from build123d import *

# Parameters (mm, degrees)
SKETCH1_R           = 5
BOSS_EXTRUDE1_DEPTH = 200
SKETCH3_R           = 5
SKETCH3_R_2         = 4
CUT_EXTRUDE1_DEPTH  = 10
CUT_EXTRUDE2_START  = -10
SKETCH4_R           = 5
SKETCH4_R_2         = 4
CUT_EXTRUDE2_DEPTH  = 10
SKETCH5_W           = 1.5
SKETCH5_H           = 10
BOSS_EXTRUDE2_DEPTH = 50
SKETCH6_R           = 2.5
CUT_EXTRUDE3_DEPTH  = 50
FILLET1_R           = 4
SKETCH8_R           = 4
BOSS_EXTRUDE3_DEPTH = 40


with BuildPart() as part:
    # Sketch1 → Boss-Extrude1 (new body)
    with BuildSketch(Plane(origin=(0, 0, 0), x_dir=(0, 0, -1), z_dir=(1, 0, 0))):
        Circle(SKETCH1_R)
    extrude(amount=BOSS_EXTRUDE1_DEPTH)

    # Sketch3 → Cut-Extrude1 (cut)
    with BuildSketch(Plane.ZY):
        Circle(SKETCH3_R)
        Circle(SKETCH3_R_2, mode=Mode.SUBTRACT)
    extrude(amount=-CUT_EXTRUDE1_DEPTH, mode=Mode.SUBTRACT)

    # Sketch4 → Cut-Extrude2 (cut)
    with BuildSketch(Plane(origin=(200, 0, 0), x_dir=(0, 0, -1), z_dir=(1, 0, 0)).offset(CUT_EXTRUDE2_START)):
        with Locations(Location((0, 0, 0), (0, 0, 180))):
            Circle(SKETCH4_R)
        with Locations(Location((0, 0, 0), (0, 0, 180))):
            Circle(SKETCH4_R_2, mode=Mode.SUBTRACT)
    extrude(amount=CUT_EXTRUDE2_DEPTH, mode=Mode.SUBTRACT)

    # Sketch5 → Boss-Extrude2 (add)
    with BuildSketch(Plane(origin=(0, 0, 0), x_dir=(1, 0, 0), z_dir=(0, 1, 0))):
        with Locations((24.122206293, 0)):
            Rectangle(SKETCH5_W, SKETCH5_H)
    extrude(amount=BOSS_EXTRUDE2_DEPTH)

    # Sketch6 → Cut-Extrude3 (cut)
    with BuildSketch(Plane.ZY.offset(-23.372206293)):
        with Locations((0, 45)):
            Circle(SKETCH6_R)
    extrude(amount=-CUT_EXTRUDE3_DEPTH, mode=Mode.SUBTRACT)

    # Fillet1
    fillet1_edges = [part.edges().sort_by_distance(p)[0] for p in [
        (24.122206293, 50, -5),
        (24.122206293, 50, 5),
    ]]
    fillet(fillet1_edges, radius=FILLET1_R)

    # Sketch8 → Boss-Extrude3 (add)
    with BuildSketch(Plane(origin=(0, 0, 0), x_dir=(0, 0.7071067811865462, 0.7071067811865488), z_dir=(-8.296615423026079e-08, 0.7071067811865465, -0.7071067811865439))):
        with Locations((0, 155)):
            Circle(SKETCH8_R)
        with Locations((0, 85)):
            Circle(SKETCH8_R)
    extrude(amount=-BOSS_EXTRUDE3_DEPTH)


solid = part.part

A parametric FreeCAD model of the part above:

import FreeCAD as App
import Part
import Sketcher


def edges_at(feature, points):
    """Names of the edges that pass closest to the given points."""
    edges = feature.Shape.Edges
    near = lambda p: min(range(len(edges)), key=lambda i: edges[i].distToShape(Part.Vertex(*p))[0])
    return sorted({f"Edge{near(p) + 1}" for p in points})

doc = App.newDocument("Part")
body = doc.addObject("PartDesign::Body", "Body")

# Sketch on YZ plane
sketch1 = doc.addObject("Sketcher::SketchObject", "Sketch")
body.addObject(sketch1)
sketch1.AttachmentSupport = (doc.YZ_Plane, [""])
sketch1.MapMode = "FlatFace"
sketch1.addGeometry(Part.Circle(App.Vector(0, 0, 0), App.Vector(0, 0, 1), 5), False)
sketch1.addConstraint([
    Sketcher.Constraint("Coincident", 0, 3, -1, 1),
    Sketcher.Constraint("Diameter", 0, 10.0),
])
pad1 = doc.addObject("PartDesign::Pad", "Pad")
body.addObject(pad1)
pad1.Profile = sketch1
pad1.Length = 200

# Sketch on YZ plane
sketch2 = doc.addObject("Sketcher::SketchObject", "Sketch001")
body.addObject(sketch2)
sketch2.AttachmentSupport = (doc.YZ_Plane, [""])
sketch2.MapMode = "FlatFace"
sketch2.addGeometry([
    Part.Circle(App.Vector(0, 0, 0), App.Vector(0, 0, 1), 5),
    Part.Circle(App.Vector(0, 0, 0), App.Vector(0, 0, 1), 4),
], False)
sketch2.addConstraint([
    Sketcher.Constraint("Coincident", 0, 3, -1, 1),
    Sketcher.Constraint("Coincident", 1, 3, -1, 1),
    Sketcher.Constraint("Diameter", 0, 10.0),
    Sketcher.Constraint("Diameter", 1, 8.0),
])
pocket1 = doc.addObject("PartDesign::Pocket", "Pocket")
body.addObject(pocket1)
pocket1.Profile = sketch2
pocket1.Length = 10
pocket1.Reversed = True

# Sketch on YZ plane
sketch3 = doc.addObject("Sketcher::SketchObject", "Sketch002")
body.addObject(sketch3)
sketch3.AttachmentSupport = (doc.YZ_Plane, [""])
sketch3.MapMode = "FlatFace"
sketch3.AttachmentOffset = App.Placement(App.Vector(0, 0, 190), App.Rotation())
sketch3.addGeometry([
    Part.Circle(App.Vector(0, 0, 0), App.Vector(0, 0, 1), 5),
    Part.Circle(App.Vector(0, 0, 0), App.Vector(0, 0, 1), 4),
], False)
sketch3.addConstraint([
    Sketcher.Constraint("Coincident", 0, 3, -1, 1),
    Sketcher.Constraint("Coincident", 1, 3, -1, 1),
    Sketcher.Constraint("Diameter", 0, 10.0),
    Sketcher.Constraint("Diameter", 1, 8.0),
])
pocket2 = doc.addObject("PartDesign::Pocket", "Pocket001")
body.addObject(pocket2)
pocket2.Profile = sketch3
pocket2.Length = 10
pocket2.Reversed = True

# Sketch on XZ plane
sketch4 = doc.addObject("Sketcher::SketchObject", "Sketch003")
body.addObject(sketch4)
sketch4.AttachmentSupport = (doc.XZ_Plane, [""])
sketch4.MapMode = "FlatFace"
sketch4.addGeometry([
    Part.LineSegment(App.Vector(23.4, -5, 0), App.Vector(23.4, 5, 0)),
    Part.LineSegment(App.Vector(23.4, 5, 0), App.Vector(24.9, 5, 0)),
    Part.LineSegment(App.Vector(24.9, 5, 0), App.Vector(24.9, -5, 0)),
    Part.LineSegment(App.Vector(24.9, -5, 0), App.Vector(23.4, -5, 0)),
], False)
sketch4.addConstraint([
    Sketcher.Constraint("Coincident", 0, 2, 1, 1),
    Sketcher.Constraint("Coincident", 1, 2, 2, 1),
    Sketcher.Constraint("Coincident", 2, 2, 3, 1),
    Sketcher.Constraint("Coincident", 3, 2, 0, 1),
    Sketcher.Constraint("Vertical", 0),
    Sketcher.Constraint("Horizontal", 1),
    Sketcher.Constraint("Vertical", 2),
    Sketcher.Constraint("Horizontal", 3),
    Sketcher.Constraint("DistanceY", 0, 1, 0, 2, 10.0),
    Sketcher.Constraint("DistanceX", 1, 1, 1, 2, 1.5),
    Sketcher.Constraint("DistanceY", -1, 1, 0, 2, 5.0),
    Sketcher.Constraint("DistanceX", -1, 1, 0, 2, 23.372206),
])
pad2 = doc.addObject("PartDesign::Pad", "Pad001")
body.addObject(pad2)
pad2.Profile = sketch4
pad2.Length = 50
pad2.Reversed = True

# Sketch on YZ plane
sketch5 = doc.addObject("Sketcher::SketchObject", "Sketch004")
body.addObject(sketch5)
sketch5.AttachmentSupport = (doc.YZ_Plane, [""])
sketch5.MapMode = "FlatFace"
sketch5.AttachmentOffset = App.Placement(App.Vector(0, 0, 23.372206), App.Rotation())
sketch5.addGeometry(Part.Circle(App.Vector(45, 0, 0), App.Vector(0, 0, 1), 2.5), False)
sketch5.addConstraint([
    Sketcher.Constraint("PointOnObject", 0, 3, -1),
    Sketcher.Constraint("Diameter", 0, 5.0),
    Sketcher.Constraint("DistanceX", -1, 1, 0, 3, 45.0),
])
pocket3 = doc.addObject("PartDesign::Pocket", "Pocket002")
body.addObject(pocket3)
pocket3.Profile = sketch5
pocket3.Length = 50
pocket3.Reversed = True
doc.recompute()

fillet = doc.addObject("PartDesign::Fillet", "Fillet")
body.addObject(fillet)
fillet.Base = (pocket3, edges_at(pocket3, [(24.122, 50, -5), (24.122, 50, 5)]))
fillet.Radius = 4

# Sketch on an angled plane
sketch6 = doc.addObject("Sketcher::SketchObject", "Sketch005")
body.addObject(sketch6)
sketch6.Placement = App.Placement(App.Vector(0, 0, 0), App.Rotation(App.Vector(0, 0.707106781, 0.707106781), App.Vector(0.999999999, 0.000000059, -0.000000059), App.Vector(-0.000000083, 0.707106781, -0.707106781), "ZXY"))
sketch6.addGeometry([
    Part.Circle(App.Vector(0, 155, 0), App.Vector(0, 0, 1), 4),
    Part.Circle(App.Vector(0, 85, 0), App.Vector(0, 0, 1), 4),
], False)
sketch6.addConstraint([
    Sketcher.Constraint("Equal", 0, 1),
    Sketcher.Constraint("PointOnObject", 0, 3, -2),
    Sketcher.Constraint("PointOnObject", 1, 3, -2),
    Sketcher.Constraint("Diameter", 0, 8.0),
    Sketcher.Constraint("DistanceY", -1, 1, 0, 3, 155.0),
    Sketcher.Constraint("DistanceY", -1, 1, 1, 3, 85.0),
])
pad3 = doc.addObject("PartDesign::Pad", "Pad002")
body.addObject(pad3)
pad3.Profile = sketch6
pad3.Length = 40
pad3.Reversed = True

doc.recompute()
